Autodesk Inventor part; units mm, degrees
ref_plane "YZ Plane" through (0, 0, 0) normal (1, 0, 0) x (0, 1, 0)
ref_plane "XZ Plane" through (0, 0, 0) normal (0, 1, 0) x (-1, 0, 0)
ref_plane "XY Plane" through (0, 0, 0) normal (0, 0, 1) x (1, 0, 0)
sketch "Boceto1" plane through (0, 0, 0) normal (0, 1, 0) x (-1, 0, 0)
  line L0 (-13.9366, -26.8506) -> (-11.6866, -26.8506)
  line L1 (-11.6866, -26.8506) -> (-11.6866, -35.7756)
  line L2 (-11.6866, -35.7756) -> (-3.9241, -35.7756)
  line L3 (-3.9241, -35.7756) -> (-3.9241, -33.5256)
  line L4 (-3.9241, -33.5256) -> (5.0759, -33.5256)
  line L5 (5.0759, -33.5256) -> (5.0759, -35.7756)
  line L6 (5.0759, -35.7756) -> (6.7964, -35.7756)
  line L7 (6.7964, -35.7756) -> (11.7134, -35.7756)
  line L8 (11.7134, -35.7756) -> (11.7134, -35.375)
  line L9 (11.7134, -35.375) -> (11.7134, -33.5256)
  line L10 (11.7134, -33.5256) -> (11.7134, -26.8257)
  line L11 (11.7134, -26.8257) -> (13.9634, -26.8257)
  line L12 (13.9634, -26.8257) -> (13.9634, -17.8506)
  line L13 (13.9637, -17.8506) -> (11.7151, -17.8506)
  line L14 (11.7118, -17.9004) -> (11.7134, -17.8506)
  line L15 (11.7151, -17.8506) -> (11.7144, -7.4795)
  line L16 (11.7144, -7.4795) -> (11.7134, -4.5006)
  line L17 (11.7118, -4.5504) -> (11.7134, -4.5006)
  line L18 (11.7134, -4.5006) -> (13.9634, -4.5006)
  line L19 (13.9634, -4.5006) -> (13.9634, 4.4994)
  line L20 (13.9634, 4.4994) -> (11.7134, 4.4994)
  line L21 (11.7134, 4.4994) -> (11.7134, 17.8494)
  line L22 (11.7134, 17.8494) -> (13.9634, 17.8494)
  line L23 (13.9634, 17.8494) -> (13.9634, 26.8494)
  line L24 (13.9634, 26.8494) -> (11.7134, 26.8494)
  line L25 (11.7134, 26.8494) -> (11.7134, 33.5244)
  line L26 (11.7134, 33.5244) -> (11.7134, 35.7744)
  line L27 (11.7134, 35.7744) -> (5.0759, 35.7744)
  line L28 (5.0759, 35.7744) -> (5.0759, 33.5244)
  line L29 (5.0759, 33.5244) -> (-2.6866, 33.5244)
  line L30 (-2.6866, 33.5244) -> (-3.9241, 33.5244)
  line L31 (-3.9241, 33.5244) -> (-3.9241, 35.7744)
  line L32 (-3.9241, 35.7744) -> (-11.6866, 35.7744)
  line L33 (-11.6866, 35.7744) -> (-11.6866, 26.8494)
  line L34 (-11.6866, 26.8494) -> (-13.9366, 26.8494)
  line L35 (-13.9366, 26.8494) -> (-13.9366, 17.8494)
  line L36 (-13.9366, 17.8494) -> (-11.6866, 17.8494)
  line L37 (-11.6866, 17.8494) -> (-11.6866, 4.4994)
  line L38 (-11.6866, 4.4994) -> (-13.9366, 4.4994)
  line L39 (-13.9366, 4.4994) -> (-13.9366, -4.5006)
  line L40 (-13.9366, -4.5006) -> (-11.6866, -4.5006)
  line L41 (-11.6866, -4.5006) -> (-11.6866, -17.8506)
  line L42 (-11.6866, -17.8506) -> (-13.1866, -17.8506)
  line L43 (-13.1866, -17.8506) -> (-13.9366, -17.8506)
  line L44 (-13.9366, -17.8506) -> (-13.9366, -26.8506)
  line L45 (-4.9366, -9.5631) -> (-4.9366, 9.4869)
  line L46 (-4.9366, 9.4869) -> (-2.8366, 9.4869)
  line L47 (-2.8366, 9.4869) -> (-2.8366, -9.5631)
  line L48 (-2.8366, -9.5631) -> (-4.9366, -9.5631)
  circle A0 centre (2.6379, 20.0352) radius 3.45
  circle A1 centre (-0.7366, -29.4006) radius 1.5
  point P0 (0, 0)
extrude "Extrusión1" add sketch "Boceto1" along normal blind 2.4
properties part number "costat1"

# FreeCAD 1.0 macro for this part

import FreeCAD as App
import Part
import Sketcher
from FreeCAD import Vector


def add_polygon(sketch, points):
    """Adds a closed chain of lines whose ends are joined by coincident constraints."""
    first, n = sketch.GeometryCount, len(points)
    for a, b in zip(points, points[1:] + points[:1]):
        sketch.addGeometry(Part.LineSegment(App.Vector(*a, 0), App.Vector(*b, 0)), False)
    for i in range(n):
        sketch.addConstraint(Sketcher.Constraint("Coincident", first + i, 2, first + (i + 1) % n, 1))

doc = App.newDocument("Part")
body = doc.addObject("PartDesign::Body", "Body")

# Sketch on XZ plane
sketch1 = doc.addObject("Sketcher::SketchObject", "Sketch")
body.addObject(sketch1)
sketch1.AttachmentSupport = (doc.XZ_Plane, [""])
sketch1.MapMode = "FlatFace"
add_polygon(sketch1, [(13.9366, -17.8506), (13.9366, -26.8506), (11.6866, -26.8506), (11.6866, -35.7756), (3.9241, -35.7756), (3.9241, -33.5256), (-5.0759, -33.5256), (-5.0759, -35.7756), (-11.7134, -35.7756), (-11.7134, -26.8257), (-13.9634, -26.8257), (-13.9634, -17.8506), (-11.7151, -17.8506), (-11.7144, -7.4795), (-11.7134, -4.5006), (-13.9634, -4.5006), (-13.9634, 4.4994), (-11.7134, 4.4994), (-11.7134, 17.8494), (-13.9634, 17.8494), (-13.9634, 26.8494), (-11.7134, 26.8494), (-11.7134, 35.7744), (-5.0759, 35.7744), (-5.0759, 33.5244), (3.9241, 33.5244), (3.9241, 35.7744), (11.6866, 35.7744), (11.6866, 26.8494), (13.9366, 26.8494), (13.9366, 17.8494), (11.6866, 17.8494), (11.6866, 4.4994), (13.9366, 4.4994), (13.9366, -4.5006), (11.6866, -4.5006), (11.6866, -17.8506)])  # lines 0-36
sketch1.addGeometry(Part.Circle(Vector(0.7366, -29.4006, 0), Vector(0, 0, 1), 1.5), False)  # 37
add_polygon(sketch1, [(2.8366, -9.5631), (4.9366, -9.5631), (4.9366, 9.4869), (2.8366, 9.4869)])  # lines 38-41
sketch1.addGeometry(Part.Circle(Vector(-2.6379, 20.0352, 0), Vector(0, 0, 1), 3.45), False)  # 42
sketch1.addConstraint([
    Sketcher.Constraint("Vertical", 0),
    Sketcher.Constraint("Horizontal", 1),
    Sketcher.Constraint("Vertical", 2),
    Sketcher.Constraint("Horizontal", 3),
    Sketcher.Constraint("Vertical", 4),
    Sketcher.Constraint("Horizontal", 5),
    Sketcher.Constraint("Vertical", 6),
    Sketcher.Constraint("Horizontal", 7),
    Sketcher.Constraint("Vertical", 8),
    Sketcher.Constraint("Horizontal", 9),
    Sketcher.Constraint("Vertical", 10),
    Sketcher.Constraint("Horizontal", 11),
    Sketcher.Constraint("Horizontal", 14),
    Sketcher.Constraint("Vertical", 15),
    Sketcher.Constraint("Horizontal", 16),
    Sketcher.Constraint("Vertical", 17),
    Sketcher.Constraint("Horizontal", 18),
    Sketcher.Constraint("Vertical", 19),
    Sketcher.Constraint("Horizontal", 20),
    Sketcher.Constraint("Vertical", 21),
    Sketcher.Constraint("Horizontal", 22),
    Sketcher.Constraint("Vertical", 23),
    Sketcher.Constraint("Horizontal", 24),
    Sketcher.Constraint("Vertical", 25),
    Sketcher.Constraint("Horizontal", 26),
    Sketcher.Constraint("Vertical", 27),
    Sketcher.Constraint("Horizontal", 28),
    Sketcher.Constraint("Vertical", 29),
    Sketcher.Constraint("Horizontal", 30),
    Sketcher.Constraint("Vertical", 31),
    Sketcher.Constraint("Horizontal", 32),
    Sketcher.Constraint("Vertical", 33),
    Sketcher.Constraint("Horizontal", 34),
    Sketcher.Constraint("Vertical", 35),
    Sketcher.Constraint("Horizontal", 36),
    Sketcher.Constraint("Horizontal", 38),
    Sketcher.Constraint("Vertical", 39),
    Sketcher.Constraint("Horizontal", 40),
    Sketcher.Constraint("Vertical", 41),
    Sketcher.Constraint("Diameter", 37, 3.0),
    Sketcher.Constraint("Diameter", 42, 6.9),
    Sketcher.Constraint("DistanceX", 5, 2, 5, 1, 9.0),
    Sketcher.Constraint("DistanceX", 24, 1, 24, 2, 9.0),
    Sketcher.Constraint("DistanceY", 0, 2, 0, 1, 9.0),
    Sketcher.Constraint("DistanceY", 15, 1, 15, 2, 9.0),
    Sketcher.Constraint("DistanceY", 19, 1, 19, 2, 9.0),
    Sketcher.Constraint("DistanceY", 29, 2, 29, 1, 9.0),
    Sketcher.Constraint("DistanceY", 33, 2, 33, 1, 9.0),
    Sketcher.Constraint("DistanceX", 38, 1, 38, 2, 2.1),
    Sketcher.Constraint("DistanceX", 38, 2, 33, 2, 9.0),
    Sketcher.Constraint("DistanceX", 38, 2, 36, 2, 9.0),
    Sketcher.Constraint("DistanceX", 39, 2, 29, 2, 9.0),
    Sketcher.Constraint("DistanceX", 1, 2, 1, 1, 2.25),
    Sketcher.Constraint("DistanceX", 9, 2, 9, 1, 2.25),
    Sketcher.Constraint("DistanceX", 14, 2, 14, 1, 2.25),
    Sketcher.Constraint("DistanceX", 16, 1, 16, 2, 2.25),
    Sketcher.Constraint("DistanceX", 18, 2, 18, 1, 2.25),
    Sketcher.Constraint("DistanceX", 20, 1, 20, 2, 2.25),
    Sketcher.Constraint("DistanceX", 28, 1, 28, 2, 2.25),
    Sketcher.Constraint("DistanceX", 30, 2, 30, 1, 2.25),
    Sketcher.Constraint("DistanceX", 34, 2, 34, 1, 2.25),
    Sketcher.Constraint("DistanceY", 4, 1, 4, 2, 2.25),
    Sketcher.Constraint("DistanceY", 6, 2, 6, 1, 2.25),
    Sketcher.Constraint("DistanceY", 8, 1, 8, 2, 8.95),
    Sketcher.Constraint("DistanceY", 17, 1, 17, 2, 13.35),
    Sketcher.Constraint("DistanceY", 23, 2, 23, 1, 2.25),
    Sketcher.Constraint("DistanceY", 25, 1, 25, 2, 2.25),
    Sketcher.Constraint("DistanceY", 31, 2, 31, 1, 13.35),
    Sketcher.Constraint("DistanceY", 35, 2, 35, 1, 13.35),
    Sketcher.Constraint("DistanceY", 39, 1, 39, 2, 19.05),
    Sketcher.Constraint("DistanceX", 37, 3, 0, 2, 13.2),
    Sketcher.Constraint("DistanceX", 9, 2, 37, 3, 14.7),
    Sketcher.Constraint("DistanceY", 2, 2, 2, 1, 8.925),
    Sketcher.Constraint("DistanceY", 10, 1, 10, 2, 8.975),
    Sketcher.Constraint("DistanceY", 21, 1, 21, 2, 8.925),
    Sketcher.Constraint("DistanceY", 27, 2, 27, 1, 8.925),
    Sketcher.Constraint("DistanceY", 37, 3, 0, 2, 2.55),
    Sketcher.Constraint("DistanceX", 10, 2, 13, 2, 2.25),
    Sketcher.Constraint("Distance", 12, 10.371),
    Sketcher.Constraint("DistanceX", 3, 2, 3, 1, 7.7625),
    Sketcher.Constraint("DistanceX", 11, 1, 11, 2, 2.2483),
    Sketcher.Constraint("DistanceX", 22, 1, 22, 2, 6.6375),
    Sketcher.Constraint("DistanceX", 42, 3, -1, 1, 2.638),
    Sketcher.Constraint("DistanceX", -1, 1, 3, 2, 3.924),
    Sketcher.Constraint("DistanceY", 38, 2, -1, 1, 9.563),
    Sketcher.Constraint("DistanceX", 10, 2, 12, 2, 2.249),
    Sketcher.Constraint("DistanceY", 37, 3, -1, 1, 29.4006),
    Sketcher.Constraint("DistanceY", -1, 1, 42, 3, 20.0352),
])
pad1 = doc.addObject("PartDesign::Pad", "Pad")
body.addObject(pad1)
pad1.Profile = sketch1
pad1.Length = 2.4
pad1.Reversed = True

doc.recompute()
